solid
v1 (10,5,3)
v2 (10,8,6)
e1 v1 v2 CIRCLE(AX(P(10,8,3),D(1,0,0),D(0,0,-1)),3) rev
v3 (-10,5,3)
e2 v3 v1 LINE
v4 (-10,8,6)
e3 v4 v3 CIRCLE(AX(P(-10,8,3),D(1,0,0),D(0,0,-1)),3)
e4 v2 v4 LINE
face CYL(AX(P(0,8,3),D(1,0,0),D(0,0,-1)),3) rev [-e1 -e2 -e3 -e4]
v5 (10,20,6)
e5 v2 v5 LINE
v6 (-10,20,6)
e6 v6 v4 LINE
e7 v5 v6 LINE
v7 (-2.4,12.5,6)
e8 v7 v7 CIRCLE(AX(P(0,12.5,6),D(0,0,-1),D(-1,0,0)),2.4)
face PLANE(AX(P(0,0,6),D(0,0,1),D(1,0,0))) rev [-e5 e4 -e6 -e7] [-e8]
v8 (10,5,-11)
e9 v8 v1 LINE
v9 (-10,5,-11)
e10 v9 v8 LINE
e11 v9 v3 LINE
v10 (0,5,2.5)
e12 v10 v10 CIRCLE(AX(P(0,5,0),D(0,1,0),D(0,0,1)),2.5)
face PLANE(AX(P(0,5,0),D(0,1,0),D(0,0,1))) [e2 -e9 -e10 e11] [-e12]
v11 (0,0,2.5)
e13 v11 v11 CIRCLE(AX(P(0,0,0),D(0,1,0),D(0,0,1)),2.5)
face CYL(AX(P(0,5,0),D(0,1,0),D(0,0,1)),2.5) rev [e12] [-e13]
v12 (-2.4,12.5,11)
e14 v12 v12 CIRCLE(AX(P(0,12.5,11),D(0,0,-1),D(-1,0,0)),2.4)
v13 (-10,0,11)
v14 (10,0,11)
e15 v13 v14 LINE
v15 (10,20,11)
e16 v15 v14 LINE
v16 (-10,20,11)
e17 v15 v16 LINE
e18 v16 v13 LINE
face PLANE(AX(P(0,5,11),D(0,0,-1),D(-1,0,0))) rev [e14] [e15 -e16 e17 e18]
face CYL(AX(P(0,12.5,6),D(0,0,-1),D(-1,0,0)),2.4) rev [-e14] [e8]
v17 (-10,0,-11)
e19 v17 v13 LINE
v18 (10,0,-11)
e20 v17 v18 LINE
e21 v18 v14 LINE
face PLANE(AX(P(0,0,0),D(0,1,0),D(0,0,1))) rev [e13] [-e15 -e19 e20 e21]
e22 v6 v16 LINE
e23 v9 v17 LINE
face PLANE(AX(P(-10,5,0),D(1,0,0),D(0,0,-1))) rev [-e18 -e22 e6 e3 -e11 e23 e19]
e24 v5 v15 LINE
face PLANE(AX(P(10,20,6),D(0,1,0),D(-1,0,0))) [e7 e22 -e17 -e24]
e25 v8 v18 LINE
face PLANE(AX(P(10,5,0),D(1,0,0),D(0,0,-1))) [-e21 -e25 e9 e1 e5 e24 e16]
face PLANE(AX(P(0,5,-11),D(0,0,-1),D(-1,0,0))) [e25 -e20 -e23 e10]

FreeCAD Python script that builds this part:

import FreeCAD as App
import Part
import Sketcher
Q = App.Units.Quantity


def edges_at(feature, points):
    """Names of the edges that pass closest to the given points."""
    edges = feature.Shape.Edges
    near = lambda p: min(range(len(edges)), key=lambda i: edges[i].distToShape(Part.Vertex(*p))[0])
    return sorted({f"Edge{near(p) + 1}" for p in points})

doc = App.newDocument("Part")
body = doc.addObject("PartDesign::Body", "Body")

# Sketch on XZ plane
sketch1 = doc.addObject("Sketcher::SketchObject", "Sketch")
body.addObject(sketch1)
sketch1.AttachmentSupport = (doc.XZ_Plane, [""])
sketch1.MapMode = "FlatFace"
sketch1.addGeometry([
    Part.LineSegment(App.Vector(-10, -11, 0), App.Vector(-10, 11, 0)),
    Part.LineSegment(App.Vector(-10, 11, 0), App.Vector(10, 11, 0)),
    Part.LineSegment(App.Vector(10, 11, 0), App.Vector(10, -11, 0)),
    Part.LineSegment(App.Vector(10, -11, 0), App.Vector(-10, -11, 0)),
], False)
sketch1.addConstraint([
    Sketcher.Constraint("Coincident", 0, 2, 1, 1),
    Sketcher.Constraint("Coincident", 1, 2, 2, 1),
    Sketcher.Constraint("Coincident", 2, 2, 3, 1),
    Sketcher.Constraint("Coincident", 3, 2, 0, 1),
    Sketcher.Constraint("Vertical", 0),
    Sketcher.Constraint("Horizontal", 1),
    Sketcher.Constraint("Vertical", 2),
    Sketcher.Constraint("Horizontal", 3),
    Sketcher.Constraint("Symmetric", 0, 2, 2, 2, -1, 1),
    Sketcher.Constraint("DistanceX", 1, 1, 1, 2, Q("20 mm")),
    Sketcher.Constraint("DistanceY", 0, 1, 0, 2, Q("22 mm")),
])
pad1 = doc.addObject("PartDesign::Pad", "Pad")
body.addObject(pad1)
pad1.Profile = sketch1
pad1.Length = 5
pad1.Reversed = True

# Sketch on XY plane
sketch2 = doc.addObject("Sketcher::SketchObject", "Sketch001")
body.addObject(sketch2)
sketch2.AttachmentSupport = (doc.XY_Plane, [""])
sketch2.MapMode = "FlatFace"
sketch2.AttachmentOffset = App.Placement(App.Vector(0, 0, 11), App.Rotation())
sketch2.addGeometry([
    Part.LineSegment(App.Vector(-10, 20, 0), App.Vector(-10, 5, 0)),
    Part.LineSegment(App.Vector(-10, 5, 0), App.Vector(10, 5, 0)),
    Part.LineSegment(App.Vector(10, 5, 0), App.Vector(10, 20, 0)),
    Part.LineSegment(App.Vector(10, 20, 0), App.Vector(-10, 20, 0)),
], False)
sketch2.addConstraint([
    Sketcher.Constraint("Coincident", 0, 2, 1, 1),
    Sketcher.Constraint("Coincident", 1, 2, 2, 1),
    Sketcher.Constraint("Coincident", 2, 2, 3, 1),
    Sketcher.Constraint("Coincident", 3, 2, 0, 1),
    Sketcher.Constraint("Vertical", 0),
    Sketcher.Constraint("Horizontal", 1),
    Sketcher.Constraint("Vertical", 2),
    Sketcher.Constraint("Horizontal", 3),
    Sketcher.Constraint("DistanceX", 1, 1, 1, 2, Q("20 mm")),
    Sketcher.Constraint("DistanceY", 0, 2, 0, 1, Q("15 mm")),
    Sketcher.Constraint("DistanceX", 0, 2, -1, 1, Q("10 mm")),
    Sketcher.Constraint("DistanceY", -1, 1, 0, 2, Q("5 mm")),
])
pad2 = doc.addObject("PartDesign::Pad", "Pad001")
body.addObject(pad2)
pad2.Profile = sketch2
pad2.Length = 5
pad2.Reversed = True

# Sketch on XZ plane
sketch3 = doc.addObject("Sketcher::SketchObject", "Sketch002")
body.addObject(sketch3)
sketch3.AttachmentSupport = (doc.XZ_Plane, [""])
sketch3.MapMode = "FlatFace"
sketch3.AttachmentOffset = App.Placement(App.Vector(0, 0, -5), App.Rotation())
sketch3.addGeometry(Part.Circle(App.Vector(0, 0, 0), App.Vector(0, 0, 1), 2.5), False)
sketch3.addConstraint([
    Sketcher.Constraint("Coincident", 0, 3, -1, 1),
    Sketcher.Constraint("Diameter", 0, Q("5 mm")),
])
doc.recompute()
hole = doc.addObject("PartDesign::Hole", "Hole")
body.addObject(hole)
hole.Profile = sketch3
hole.ThreadType = "None"
hole.Diameter = 5
hole.DepthType = "Dimension"
hole.Depth = 5
hole.DrillPoint = "Flat"
hole.Reversed = True

# Sketch on XY plane
sketch4 = doc.addObject("Sketcher::SketchObject", "Sketch003")
body.addObject(sketch4)
sketch4.AttachmentSupport = (doc.XY_Plane, [""])
sketch4.MapMode = "FlatFace"
sketch4.AttachmentOffset = App.Placement(App.Vector(0, 0, 6), App.Rotation())
sketch4.addGeometry(Part.Circle(App.Vector(0, 12.5, 0), App.Vector(0, 0, 1), 2.4), False)
sketch4.addConstraint([
    Sketcher.Constraint("PointOnObject", 0, 3, -2),
    Sketcher.Constraint("Diameter", 0, Q("4.8 mm")),
    Sketcher.Constraint("DistanceY", -1, 1, 0, 3, Q("12.5 mm")),
])
doc.recompute()
hole2 = doc.addObject("PartDesign::Hole", "Hole001")
body.addObject(hole2)
hole2.Profile = sketch4
hole2.ThreadType = "None"
hole2.Diameter = 4.8
hole2.DepthType = "Dimension"
hole2.Depth = 5
hole2.DrillPoint = "Flat"
hole2.Reversed = True
doc.recompute()

fillet = doc.addObject("PartDesign::Fillet", "Fillet")
body.addObject(fillet)
fillet.Base = (hole2, edges_at(hole2, [(0, 5, 6)]))
fillet.Radius = 3

doc.recompute()
